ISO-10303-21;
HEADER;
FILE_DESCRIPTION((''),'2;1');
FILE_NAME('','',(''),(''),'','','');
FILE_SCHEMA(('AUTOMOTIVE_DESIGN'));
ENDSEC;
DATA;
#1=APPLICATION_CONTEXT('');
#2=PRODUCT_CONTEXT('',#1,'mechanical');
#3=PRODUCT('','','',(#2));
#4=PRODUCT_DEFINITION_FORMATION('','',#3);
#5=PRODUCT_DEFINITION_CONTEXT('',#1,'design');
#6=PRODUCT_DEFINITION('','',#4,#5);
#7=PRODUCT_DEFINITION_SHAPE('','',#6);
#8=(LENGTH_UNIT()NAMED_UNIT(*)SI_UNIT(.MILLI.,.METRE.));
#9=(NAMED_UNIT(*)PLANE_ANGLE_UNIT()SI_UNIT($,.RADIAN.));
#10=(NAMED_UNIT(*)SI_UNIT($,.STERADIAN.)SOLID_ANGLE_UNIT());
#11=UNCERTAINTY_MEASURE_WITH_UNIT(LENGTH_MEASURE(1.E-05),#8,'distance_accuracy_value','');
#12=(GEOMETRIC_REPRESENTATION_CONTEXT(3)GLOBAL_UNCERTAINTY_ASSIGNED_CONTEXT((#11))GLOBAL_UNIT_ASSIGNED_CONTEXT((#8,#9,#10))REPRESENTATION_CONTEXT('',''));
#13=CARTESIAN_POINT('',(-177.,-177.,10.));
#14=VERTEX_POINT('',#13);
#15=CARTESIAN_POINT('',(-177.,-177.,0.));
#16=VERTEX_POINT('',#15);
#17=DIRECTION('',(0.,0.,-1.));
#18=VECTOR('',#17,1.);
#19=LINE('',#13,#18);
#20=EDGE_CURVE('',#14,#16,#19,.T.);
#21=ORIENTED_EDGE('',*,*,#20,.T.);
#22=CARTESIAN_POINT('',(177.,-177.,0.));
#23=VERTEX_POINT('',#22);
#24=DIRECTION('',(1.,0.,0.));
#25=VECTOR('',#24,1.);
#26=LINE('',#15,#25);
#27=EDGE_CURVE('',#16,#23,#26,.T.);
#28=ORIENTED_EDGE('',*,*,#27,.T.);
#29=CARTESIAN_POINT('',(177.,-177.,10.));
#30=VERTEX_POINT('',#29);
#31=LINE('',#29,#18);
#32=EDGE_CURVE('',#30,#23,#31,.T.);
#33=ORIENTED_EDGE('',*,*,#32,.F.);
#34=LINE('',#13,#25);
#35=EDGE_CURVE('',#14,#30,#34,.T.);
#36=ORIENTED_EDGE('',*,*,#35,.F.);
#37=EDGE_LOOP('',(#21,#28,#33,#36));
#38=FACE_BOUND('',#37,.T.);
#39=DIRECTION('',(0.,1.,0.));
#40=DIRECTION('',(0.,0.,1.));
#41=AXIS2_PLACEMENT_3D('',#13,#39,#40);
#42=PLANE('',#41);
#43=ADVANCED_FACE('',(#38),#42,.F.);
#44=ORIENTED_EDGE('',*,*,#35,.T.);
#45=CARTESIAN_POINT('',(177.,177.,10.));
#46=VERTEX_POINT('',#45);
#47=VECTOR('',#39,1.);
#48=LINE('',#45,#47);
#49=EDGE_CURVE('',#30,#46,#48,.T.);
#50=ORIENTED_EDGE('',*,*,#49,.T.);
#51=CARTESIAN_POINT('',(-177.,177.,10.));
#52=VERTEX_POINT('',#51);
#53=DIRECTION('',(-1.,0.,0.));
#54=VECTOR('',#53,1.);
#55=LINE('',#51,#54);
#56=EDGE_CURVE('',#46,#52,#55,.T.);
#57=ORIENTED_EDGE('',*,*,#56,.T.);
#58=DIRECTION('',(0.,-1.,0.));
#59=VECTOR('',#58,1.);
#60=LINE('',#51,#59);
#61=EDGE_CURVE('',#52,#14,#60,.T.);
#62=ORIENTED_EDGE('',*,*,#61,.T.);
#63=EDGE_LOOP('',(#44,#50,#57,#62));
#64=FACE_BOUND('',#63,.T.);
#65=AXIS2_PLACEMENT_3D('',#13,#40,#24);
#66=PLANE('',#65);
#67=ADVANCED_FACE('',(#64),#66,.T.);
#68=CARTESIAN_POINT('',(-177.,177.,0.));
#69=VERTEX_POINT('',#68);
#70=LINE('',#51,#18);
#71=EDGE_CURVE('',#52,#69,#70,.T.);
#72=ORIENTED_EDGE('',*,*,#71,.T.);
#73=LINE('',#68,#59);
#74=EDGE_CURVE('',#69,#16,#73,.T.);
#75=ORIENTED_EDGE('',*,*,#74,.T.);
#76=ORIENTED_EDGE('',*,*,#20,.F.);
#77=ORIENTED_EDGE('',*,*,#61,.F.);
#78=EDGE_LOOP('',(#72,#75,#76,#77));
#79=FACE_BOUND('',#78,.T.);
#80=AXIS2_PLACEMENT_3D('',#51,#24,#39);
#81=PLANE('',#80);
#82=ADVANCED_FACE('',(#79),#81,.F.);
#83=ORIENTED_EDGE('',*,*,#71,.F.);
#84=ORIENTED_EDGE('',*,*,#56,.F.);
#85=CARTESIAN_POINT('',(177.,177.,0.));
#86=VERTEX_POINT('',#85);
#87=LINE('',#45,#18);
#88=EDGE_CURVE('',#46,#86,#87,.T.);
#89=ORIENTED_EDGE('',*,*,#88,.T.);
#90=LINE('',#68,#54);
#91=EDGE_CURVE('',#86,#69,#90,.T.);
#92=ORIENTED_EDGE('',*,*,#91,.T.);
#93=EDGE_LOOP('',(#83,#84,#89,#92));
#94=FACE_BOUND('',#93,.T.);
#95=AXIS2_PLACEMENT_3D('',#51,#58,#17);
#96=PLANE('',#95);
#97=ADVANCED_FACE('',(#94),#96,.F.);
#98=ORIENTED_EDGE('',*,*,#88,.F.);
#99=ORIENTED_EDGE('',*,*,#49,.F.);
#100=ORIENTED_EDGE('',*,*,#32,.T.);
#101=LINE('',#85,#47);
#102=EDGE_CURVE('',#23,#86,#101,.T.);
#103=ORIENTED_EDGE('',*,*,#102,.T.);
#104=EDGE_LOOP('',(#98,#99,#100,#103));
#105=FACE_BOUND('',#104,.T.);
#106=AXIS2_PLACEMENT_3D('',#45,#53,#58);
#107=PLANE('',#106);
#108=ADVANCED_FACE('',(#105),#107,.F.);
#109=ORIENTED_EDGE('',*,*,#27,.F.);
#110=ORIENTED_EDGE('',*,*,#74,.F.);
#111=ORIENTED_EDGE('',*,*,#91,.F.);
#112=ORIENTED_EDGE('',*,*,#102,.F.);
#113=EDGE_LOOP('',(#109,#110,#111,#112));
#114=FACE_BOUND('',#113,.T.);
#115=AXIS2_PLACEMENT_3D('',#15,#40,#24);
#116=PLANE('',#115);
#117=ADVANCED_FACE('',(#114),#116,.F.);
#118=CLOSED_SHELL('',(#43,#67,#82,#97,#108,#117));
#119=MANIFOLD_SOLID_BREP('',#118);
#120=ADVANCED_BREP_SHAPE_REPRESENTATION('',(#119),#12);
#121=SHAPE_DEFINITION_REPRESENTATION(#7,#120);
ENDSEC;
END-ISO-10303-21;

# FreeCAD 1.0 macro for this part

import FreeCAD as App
import Part
import Sketcher
Q = App.Units.Quantity


def add_polygon(sketch, points):
    """Adds a closed chain of lines whose ends are joined by coincident constraints."""
    first, n = sketch.GeometryCount, len(points)
    for a, b in zip(points, points[1:] + points[:1]):
        sketch.addGeometry(Part.LineSegment(App.Vector(*a, 0), App.Vector(*b, 0)), False)
    for i in range(n):
        sketch.addConstraint(Sketcher.Constraint("Coincident", first + i, 2, first + (i + 1) % n, 1))

doc = App.newDocument("Part")
body = doc.addObject("PartDesign::Body", "Body")

# Sketch on XY plane
sketch1 = body.newObject("Sketcher::SketchObject", "Sketch")
sketch1.AttachmentSupport = (doc.getObject("XY_Plane"), [""])
sketch1.MapMode = "FlatFace"
add_polygon(sketch1, [(-177, 177), (-177, -177), (177, -177), (177, 177)])  # lines 0-3
sketch1.addConstraint(Sketcher.Constraint("Vertical", 0))
sketch1.addConstraint(Sketcher.Constraint("Horizontal", 1))
sketch1.addConstraint(Sketcher.Constraint("Vertical", 2))
sketch1.addConstraint(Sketcher.Constraint("Horizontal", 3))
sketch1.addConstraint(Sketcher.Constraint("Symmetric", 0, 2, 2, 2, -1, 1))
sketch1.addConstraint(Sketcher.Constraint("Equal", 3, 0))
sketch1.addConstraint(Sketcher.Constraint("DistanceX", 1, 1, 1, 2, Q("354 mm")))
pad1 = body.newObject("PartDesign::Pad", "Pad")
pad1.Profile = sketch1
pad1.Length = 10

doc.recompute()
